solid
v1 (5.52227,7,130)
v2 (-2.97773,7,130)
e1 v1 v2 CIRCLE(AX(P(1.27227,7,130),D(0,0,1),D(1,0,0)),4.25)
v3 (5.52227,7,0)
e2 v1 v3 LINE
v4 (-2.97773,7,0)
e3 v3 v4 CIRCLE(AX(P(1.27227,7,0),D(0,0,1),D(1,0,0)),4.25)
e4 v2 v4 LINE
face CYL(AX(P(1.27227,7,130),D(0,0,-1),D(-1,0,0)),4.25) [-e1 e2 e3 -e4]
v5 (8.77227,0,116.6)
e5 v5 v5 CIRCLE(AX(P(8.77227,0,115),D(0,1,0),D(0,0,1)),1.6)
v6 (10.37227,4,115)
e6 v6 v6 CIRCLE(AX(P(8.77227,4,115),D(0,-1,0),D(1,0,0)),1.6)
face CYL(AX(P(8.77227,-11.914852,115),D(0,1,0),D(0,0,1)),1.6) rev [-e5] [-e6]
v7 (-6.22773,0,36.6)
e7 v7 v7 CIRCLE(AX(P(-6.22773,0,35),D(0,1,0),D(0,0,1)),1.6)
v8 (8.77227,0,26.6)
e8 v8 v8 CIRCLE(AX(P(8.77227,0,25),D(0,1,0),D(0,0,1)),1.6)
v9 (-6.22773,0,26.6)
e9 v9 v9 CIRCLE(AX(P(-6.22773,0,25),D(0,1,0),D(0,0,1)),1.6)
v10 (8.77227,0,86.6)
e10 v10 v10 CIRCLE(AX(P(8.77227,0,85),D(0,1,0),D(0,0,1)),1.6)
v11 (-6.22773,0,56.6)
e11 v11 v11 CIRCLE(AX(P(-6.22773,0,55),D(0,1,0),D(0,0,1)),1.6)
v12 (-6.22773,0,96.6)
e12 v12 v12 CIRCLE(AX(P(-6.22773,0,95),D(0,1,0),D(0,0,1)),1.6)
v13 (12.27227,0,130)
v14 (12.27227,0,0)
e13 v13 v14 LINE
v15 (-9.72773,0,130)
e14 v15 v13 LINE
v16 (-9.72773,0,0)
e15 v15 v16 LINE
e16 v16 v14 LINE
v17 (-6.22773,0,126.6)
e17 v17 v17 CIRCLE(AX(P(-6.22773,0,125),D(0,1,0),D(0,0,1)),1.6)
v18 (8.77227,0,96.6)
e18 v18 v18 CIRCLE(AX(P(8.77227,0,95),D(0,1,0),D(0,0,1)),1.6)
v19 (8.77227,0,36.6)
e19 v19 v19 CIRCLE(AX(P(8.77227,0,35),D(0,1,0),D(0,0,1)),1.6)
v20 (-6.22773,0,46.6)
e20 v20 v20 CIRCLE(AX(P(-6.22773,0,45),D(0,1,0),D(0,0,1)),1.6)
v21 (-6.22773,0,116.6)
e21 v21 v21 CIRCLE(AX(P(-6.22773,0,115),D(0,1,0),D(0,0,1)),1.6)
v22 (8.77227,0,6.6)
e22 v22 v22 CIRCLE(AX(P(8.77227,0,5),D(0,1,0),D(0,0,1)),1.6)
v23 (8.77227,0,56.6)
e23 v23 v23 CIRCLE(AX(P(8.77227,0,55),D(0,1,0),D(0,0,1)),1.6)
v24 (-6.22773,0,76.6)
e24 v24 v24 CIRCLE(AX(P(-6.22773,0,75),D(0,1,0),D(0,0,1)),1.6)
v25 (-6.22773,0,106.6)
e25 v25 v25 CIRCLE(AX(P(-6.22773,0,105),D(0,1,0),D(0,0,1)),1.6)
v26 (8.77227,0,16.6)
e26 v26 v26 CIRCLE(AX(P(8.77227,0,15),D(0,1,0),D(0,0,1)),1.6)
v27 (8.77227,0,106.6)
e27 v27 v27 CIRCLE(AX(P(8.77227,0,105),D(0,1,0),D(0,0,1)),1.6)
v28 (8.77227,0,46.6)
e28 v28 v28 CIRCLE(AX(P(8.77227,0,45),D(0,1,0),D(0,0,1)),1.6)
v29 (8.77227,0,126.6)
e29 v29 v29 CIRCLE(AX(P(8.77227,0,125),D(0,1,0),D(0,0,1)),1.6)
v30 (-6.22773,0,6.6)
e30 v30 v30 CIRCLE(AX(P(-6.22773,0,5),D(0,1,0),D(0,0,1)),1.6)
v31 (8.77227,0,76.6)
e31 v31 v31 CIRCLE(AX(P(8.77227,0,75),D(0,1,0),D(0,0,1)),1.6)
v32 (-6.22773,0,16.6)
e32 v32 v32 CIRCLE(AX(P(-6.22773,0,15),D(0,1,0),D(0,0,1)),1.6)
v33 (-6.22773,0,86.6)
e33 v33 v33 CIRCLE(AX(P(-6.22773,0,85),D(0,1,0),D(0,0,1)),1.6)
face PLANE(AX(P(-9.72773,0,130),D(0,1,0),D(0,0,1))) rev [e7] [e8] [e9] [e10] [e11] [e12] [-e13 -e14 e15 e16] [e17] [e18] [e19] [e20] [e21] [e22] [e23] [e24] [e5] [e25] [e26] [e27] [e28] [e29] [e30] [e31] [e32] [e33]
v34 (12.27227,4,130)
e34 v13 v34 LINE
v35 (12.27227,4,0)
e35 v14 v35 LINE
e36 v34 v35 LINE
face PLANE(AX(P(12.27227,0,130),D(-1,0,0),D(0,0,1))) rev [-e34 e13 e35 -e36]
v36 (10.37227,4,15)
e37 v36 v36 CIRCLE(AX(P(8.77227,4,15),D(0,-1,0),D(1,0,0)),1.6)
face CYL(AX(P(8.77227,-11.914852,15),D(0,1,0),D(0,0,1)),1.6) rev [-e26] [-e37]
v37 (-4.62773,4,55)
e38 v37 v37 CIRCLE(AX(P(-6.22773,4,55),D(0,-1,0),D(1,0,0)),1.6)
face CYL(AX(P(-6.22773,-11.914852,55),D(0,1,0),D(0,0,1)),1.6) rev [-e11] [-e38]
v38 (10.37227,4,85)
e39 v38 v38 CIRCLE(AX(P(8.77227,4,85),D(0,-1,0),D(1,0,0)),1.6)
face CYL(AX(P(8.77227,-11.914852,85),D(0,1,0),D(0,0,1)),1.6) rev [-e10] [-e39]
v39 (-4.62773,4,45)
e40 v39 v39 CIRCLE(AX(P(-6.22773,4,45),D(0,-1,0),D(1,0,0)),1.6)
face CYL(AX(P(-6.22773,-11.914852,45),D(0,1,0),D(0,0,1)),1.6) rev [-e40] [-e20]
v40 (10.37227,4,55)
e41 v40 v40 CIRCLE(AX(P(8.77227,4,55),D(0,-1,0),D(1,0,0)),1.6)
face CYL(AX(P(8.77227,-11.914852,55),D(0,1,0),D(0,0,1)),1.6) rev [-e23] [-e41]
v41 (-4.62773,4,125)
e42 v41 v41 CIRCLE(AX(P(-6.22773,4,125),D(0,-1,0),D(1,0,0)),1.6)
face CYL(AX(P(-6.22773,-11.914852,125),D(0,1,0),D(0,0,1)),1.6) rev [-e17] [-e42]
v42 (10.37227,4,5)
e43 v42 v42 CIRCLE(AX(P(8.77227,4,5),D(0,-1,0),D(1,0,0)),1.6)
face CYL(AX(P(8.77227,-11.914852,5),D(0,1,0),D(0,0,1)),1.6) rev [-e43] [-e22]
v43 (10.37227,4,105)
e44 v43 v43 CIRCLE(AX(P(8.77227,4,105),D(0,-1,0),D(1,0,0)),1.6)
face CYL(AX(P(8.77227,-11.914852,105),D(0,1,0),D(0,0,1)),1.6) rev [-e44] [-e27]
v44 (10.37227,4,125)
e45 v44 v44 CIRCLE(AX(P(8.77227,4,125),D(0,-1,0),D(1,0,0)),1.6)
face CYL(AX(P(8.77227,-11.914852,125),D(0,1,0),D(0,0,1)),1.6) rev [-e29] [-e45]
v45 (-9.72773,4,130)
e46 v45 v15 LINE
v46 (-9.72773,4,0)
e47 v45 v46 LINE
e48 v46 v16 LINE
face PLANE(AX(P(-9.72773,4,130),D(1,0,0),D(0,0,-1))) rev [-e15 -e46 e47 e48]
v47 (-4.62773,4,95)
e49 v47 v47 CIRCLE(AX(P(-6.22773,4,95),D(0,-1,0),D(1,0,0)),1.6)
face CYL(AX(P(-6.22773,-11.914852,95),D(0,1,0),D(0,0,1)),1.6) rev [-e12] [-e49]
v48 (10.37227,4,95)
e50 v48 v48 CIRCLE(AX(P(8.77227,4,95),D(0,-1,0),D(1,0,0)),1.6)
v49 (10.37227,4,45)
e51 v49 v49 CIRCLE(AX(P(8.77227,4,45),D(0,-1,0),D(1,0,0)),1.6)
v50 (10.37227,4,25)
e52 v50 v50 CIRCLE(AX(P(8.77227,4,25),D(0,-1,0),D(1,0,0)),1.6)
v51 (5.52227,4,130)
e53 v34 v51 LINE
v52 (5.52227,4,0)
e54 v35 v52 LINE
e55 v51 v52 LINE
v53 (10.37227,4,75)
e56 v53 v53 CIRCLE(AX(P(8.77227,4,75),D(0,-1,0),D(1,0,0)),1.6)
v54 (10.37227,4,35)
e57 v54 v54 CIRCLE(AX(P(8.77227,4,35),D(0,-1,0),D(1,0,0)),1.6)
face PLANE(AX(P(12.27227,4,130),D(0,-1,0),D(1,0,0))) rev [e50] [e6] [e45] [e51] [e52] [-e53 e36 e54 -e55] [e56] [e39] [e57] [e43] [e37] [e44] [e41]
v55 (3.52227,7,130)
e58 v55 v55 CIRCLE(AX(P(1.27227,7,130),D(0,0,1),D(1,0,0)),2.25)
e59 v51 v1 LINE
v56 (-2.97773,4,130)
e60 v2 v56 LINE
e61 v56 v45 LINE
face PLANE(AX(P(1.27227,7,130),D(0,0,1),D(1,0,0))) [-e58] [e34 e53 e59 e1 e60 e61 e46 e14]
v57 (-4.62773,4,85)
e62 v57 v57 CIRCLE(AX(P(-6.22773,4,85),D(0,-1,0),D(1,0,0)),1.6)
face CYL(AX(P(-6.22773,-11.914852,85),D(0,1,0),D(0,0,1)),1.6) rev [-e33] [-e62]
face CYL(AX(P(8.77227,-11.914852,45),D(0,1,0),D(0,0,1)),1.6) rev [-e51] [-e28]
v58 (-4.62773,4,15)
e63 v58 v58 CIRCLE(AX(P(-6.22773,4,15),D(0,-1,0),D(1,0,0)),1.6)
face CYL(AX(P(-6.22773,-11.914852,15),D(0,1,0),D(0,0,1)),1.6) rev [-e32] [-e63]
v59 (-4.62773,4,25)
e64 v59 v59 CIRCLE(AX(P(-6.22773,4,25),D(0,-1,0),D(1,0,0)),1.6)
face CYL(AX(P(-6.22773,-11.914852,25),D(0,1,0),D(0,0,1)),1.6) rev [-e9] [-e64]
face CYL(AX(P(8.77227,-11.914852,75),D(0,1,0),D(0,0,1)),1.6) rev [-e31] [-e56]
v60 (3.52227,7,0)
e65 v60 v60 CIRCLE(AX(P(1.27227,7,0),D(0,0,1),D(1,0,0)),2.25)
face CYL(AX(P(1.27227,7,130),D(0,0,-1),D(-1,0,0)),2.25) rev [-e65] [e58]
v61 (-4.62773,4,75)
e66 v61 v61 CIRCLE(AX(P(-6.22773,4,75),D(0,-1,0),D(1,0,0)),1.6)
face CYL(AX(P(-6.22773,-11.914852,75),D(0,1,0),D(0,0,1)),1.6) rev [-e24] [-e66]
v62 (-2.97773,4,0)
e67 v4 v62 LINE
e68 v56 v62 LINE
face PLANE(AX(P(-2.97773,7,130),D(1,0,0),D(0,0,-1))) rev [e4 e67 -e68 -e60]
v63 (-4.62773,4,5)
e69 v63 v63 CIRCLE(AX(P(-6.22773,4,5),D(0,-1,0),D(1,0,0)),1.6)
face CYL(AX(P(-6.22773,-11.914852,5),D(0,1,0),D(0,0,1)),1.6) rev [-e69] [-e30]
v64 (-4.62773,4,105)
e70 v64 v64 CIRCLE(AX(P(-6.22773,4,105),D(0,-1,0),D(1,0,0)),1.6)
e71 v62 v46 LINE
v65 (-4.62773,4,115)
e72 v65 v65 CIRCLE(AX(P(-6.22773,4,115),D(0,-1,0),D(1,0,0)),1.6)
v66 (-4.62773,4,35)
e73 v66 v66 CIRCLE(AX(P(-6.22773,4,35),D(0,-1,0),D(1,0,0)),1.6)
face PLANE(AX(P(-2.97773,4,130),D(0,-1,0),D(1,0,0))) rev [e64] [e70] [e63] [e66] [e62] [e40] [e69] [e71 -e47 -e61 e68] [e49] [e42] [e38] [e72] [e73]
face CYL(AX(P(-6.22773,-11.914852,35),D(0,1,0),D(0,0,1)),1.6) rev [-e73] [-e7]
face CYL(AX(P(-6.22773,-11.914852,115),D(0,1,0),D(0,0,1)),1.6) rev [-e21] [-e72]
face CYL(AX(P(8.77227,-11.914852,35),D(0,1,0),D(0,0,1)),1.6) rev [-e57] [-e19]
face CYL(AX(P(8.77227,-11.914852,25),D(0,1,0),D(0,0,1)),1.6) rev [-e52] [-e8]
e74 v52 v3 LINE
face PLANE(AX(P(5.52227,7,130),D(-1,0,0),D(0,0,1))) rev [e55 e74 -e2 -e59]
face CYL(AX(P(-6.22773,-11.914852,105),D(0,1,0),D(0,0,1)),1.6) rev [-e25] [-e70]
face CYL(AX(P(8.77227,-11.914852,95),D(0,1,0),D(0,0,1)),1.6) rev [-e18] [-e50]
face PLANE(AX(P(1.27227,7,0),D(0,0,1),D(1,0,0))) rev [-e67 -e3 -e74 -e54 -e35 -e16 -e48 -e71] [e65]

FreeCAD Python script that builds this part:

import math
import FreeCAD as App
import Part
import Sketcher
from FreeCAD import Vector
Q = App.Units.Quantity

doc = App.newDocument("Part")
params = doc.addObject("Spreadsheet::Sheet", "Params")
for row, (alias, value) in enumerate([
    ("sketch1_diameter", "4.5 mm"),
    ("sketch1_width", "22 mm"),
    ("sketch1_height", "4 mm"),
    ("sketch1_height2", "3 mm"),
    ("sketch1_radius", "4.25 mm"),
    ("pad1_length", "130 mm"),
    ("sketch2_diameter", "3.2 mm"),
    ("pocket1_length", "20 mm"),
], start=1):
    params.set(f"A{row}", alias)
    params.set(f"B{row}", "=" + value)
    params.setAlias(f"B{row}", alias)

body = doc.addObject("PartDesign::Body", "Body")

sketch1 = body.newObject("Sketcher::SketchObject", "Sketch")
sketch1.AttachmentSupport = (doc.getObject("XY_Plane"), [""])
sketch1.MapMode = "FlatFace"
sketch1.addGeometry([
    Part.LineSegment(Vector(-9.72773, 0, 0), Vector(12.27227, 0, 0)),
    Part.LineSegment(Vector(12.27227, 0, 0), Vector(12.27227, 4, 0)),
    Part.LineSegment(Vector(12.27227, 4, 0), Vector(5.52227, 4, 0)),
    Part.LineSegment(Vector(5.52227, 4, 0), Vector(5.52227, 7, 0)),
    Part.ArcOfCircle(Part.Circle(Vector(1.27227, 7, 0), Vector(0, 0, 1), 4.25), math.radians(0), math.radians(180)),
    Part.LineSegment(Vector(-2.97773, 7, 0), Vector(-2.97773, 4, 0)),
    Part.LineSegment(Vector(-2.97773, 4, 0), Vector(-9.72773, 4, 0)),
    Part.LineSegment(Vector(-9.72773, 4, 0), Vector(-9.72773, 0, 0)),
    Part.Circle(Vector(1.27227, 7, 0), Vector(0, 0, 1), 2.25),
], False)
sketch1.addConstraint([
    Sketcher.Constraint("Coincident", 0, 2, 1, 1),
    Sketcher.Constraint("Coincident", 1, 2, 2, 1),
    Sketcher.Constraint("Coincident", 2, 2, 3, 1),
    Sketcher.Constraint("Tangent", 3, 2, 4, 1),
    Sketcher.Constraint("Tangent", 4, 2, 5, 1),
    Sketcher.Constraint("Coincident", 5, 2, 6, 1),
    Sketcher.Constraint("Coincident", 6, 2, 7, 1),
    Sketcher.Constraint("Coincident", 7, 2, 0, 1),
    Sketcher.Constraint("Horizontal", 0),
    Sketcher.Constraint("Vertical", 1),
    Sketcher.Constraint("Horizontal", 2),
    Sketcher.Constraint("Vertical", 3),
    Sketcher.Constraint("Vertical", 5),
    Sketcher.Constraint("Horizontal", 6),
    Sketcher.Constraint("Vertical", 7),
    Sketcher.Constraint("Coincident", 8, 3, 4, 3),
    Sketcher.Constraint("PointOnObject", 0, 2, -1),
    Sketcher.Constraint("Horizontal", 2, 2, 5, 2),
    Sketcher.Constraint("Equal", 2, 6),
    Sketcher.Constraint("Diameter", 8, Q("4.5 mm")),
    Sketcher.Constraint("DistanceX", 0, 1, 0, 2, Q("22 mm")),
    Sketcher.Constraint("DistanceY", 1, 1, 1, 2, Q("4 mm")),
    Sketcher.Constraint("DistanceY", 3, 1, 3, 2, Q("3 mm")),
    Sketcher.Constraint("Radius", 4, Q("4.25 mm")),
    Sketcher.Constraint("DistanceX", -1, 1, 4, 3, Q("1.27227 mm")),
])
sketch1.setExpression("Constraints[19]", "Params.sketch1_diameter")
sketch1.setExpression("Constraints[20]", "Params.sketch1_width")
sketch1.setExpression("Constraints[21]", "Params.sketch1_height")
sketch1.setExpression("Constraints[22]", "Params.sketch1_height2")
sketch1.setExpression("Constraints[23]", "Params.sketch1_radius")
pad1 = body.newObject("PartDesign::Pad", "Pad")
pad1.Profile = sketch1
pad1.setExpression("Length", "Params.pad1_length")

sketch2 = body.newObject("Sketcher::SketchObject", "Sketch001")
sketch2.AttachmentSupport = (doc.getObject("XZ_Plane"), [""])
sketch2.MapMode = "FlatFace"
sketch2.AttachmentOffset = App.Placement(Vector(0, 0, -8.085148), App.Rotation())
sketch2.addGeometry([
    Part.Circle(Vector(8.77227, 5, 0), Vector(0, 0, 1), 1.6),
    Part.Circle(Vector(-6.22773, 5, 0), Vector(0, 0, 1), 1.6),
    Part.Circle(Vector(-6.22773, 15, 0), Vector(0, 0, 1), 1.6),
    Part.Circle(Vector(8.77227, 15, 0), Vector(0, 0, 1), 1.6),
    Part.Circle(Vector(8.77227, 35, 0), Vector(0, 0, 1), 1.6),
    Part.Circle(Vector(8.77227, 45, 0), Vector(0, 0, 1), 1.6),
    Part.Circle(Vector(-6.22773, 35, 0), Vector(0, 0, 1), 1.6),
    Part.Circle(Vector(-6.22773, 45, 0), Vector(0, 0, 1), 1.6),
    Part.Circle(Vector(-6.22773, 25, 0), Vector(0, 0, 1), 1.6),
    Part.Circle(Vector(8.77227, 25, 0), Vector(0, 0, 1), 1.6),
    Part.Circle(Vector(-6.22773, 55, 0), Vector(0, 0, 1), 1.6),
    Part.Circle(Vector(8.77227, 55, 0), Vector(0, 0, 1), 1.6),
    Part.Circle(Vector(8.77227, 75, 0), Vector(0, 0, 1), 1.6),
    Part.Circle(Vector(-6.22773, 75, 0), Vector(0, 0, 1), 1.6),
    Part.Circle(Vector(8.77227, 105, 0), Vector(0, 0, 1), 1.6),
    Part.Circle(Vector(-6.22773, 105, 0), Vector(0, 0, 1), 1.6),
    Part.Circle(Vector(-6.22773, 85, 0), Vector(0, 0, 1), 1.6),
    Part.Circle(Vector(-6.22773, 95, 0), Vector(0, 0, 1), 1.6),
    Part.Circle(Vector(8.77227, 85, 0), Vector(0, 0, 1), 1.6),
    Part.Circle(Vector(8.77227, 95, 0), Vector(0, 0, 1), 1.6),
    Part.Circle(Vector(8.77227, 115, 0), Vector(0, 0, 1), 1.6),
    Part.Circle(Vector(-6.22773, 115, 0), Vector(0, 0, 1), 1.6),
    Part.Circle(Vector(-6.22773, 125, 0), Vector(0, 0, 1), 1.6),
    Part.Circle(Vector(8.77227, 125, 0), Vector(0, 0, 1), 1.6),
], False)
sketch2.addConstraint([
    Sketcher.Constraint("Equal", 0, 1),
    Sketcher.Constraint("Equal", 1, 2),
    Sketcher.Constraint("Equal", 2, 3),
    Sketcher.Constraint("Equal", 3, 4),
    Sketcher.Constraint("Equal", 4, 5),
    Sketcher.Constraint("Equal", 5, 6),
    Sketcher.Constraint("Equal", 6, 7),
    Sketcher.Constraint("Equal", 7, 8),
    Sketcher.Constraint("Equal", 8, 9),
    Sketcher.Constraint("Equal", 9, 10),
    Sketcher.Constraint("Equal", 10, 11),
    Sketcher.Constraint("Equal", 11, 12),
    Sketcher.Constraint("Equal", 12, 13),
    Sketcher.Constraint("Equal", 13, 14),
    Sketcher.Constraint("Equal", 14, 15),
    Sketcher.Constraint("Equal", 15, 16),
    Sketcher.Constraint("Equal", 16, 17),
    Sketcher.Constraint("Equal", 17, 18),
    Sketcher.Constraint("Equal", 18, 19),
    Sketcher.Constraint("Equal", 19, 20),
    Sketcher.Constraint("Equal", 20, 21),
    Sketcher.Constraint("Equal", 21, 22),
    Sketcher.Constraint("Equal", 22, 23),
    Sketcher.Constraint("Horizontal", 0, 3, 1, 3),
    Sketcher.Constraint("Horizontal", 2, 3, 3, 3),
    Sketcher.Constraint("Horizontal", 4, 3, 6, 3),
    Sketcher.Constraint("Horizontal", 5, 3, 7, 3),
    Sketcher.Constraint("Horizontal", 8, 3, 9, 3),
    Sketcher.Constraint("Horizontal", 10, 3, 11, 3),
    Sketcher.Constraint("Horizontal", 12, 3, 13, 3),
    Sketcher.Constraint("Horizontal", 14, 3, 15, 3),
    Sketcher.Constraint("Horizontal", 16, 3, 18, 3),
    Sketcher.Constraint("Horizontal", 17, 3, 19, 3),
    Sketcher.Constraint("Horizontal", 20, 3, 21, 3),
    Sketcher.Constraint("Horizontal", 22, 3, 23, 3),
    Sketcher.Constraint("Vertical", 1, 3, 2, 3),
    Sketcher.Constraint("Vertical", 0, 3, 3, 3),
    Sketcher.Constraint("Vertical", 3, 3, 4, 3),
    Sketcher.Constraint("Vertical", 4, 3, 5, 3),
    Sketcher.Constraint("Vertical", 2, 3, 6, 3),
    Sketcher.Constraint("Vertical", 6, 3, 7, 3),
    Sketcher.Constraint("Vertical", 7, 3, 8, 3),
    Sketcher.Constraint("Vertical", 5, 3, 9, 3),
    Sketcher.Constraint("Vertical", 8, 3, 10, 3),
    Sketcher.Constraint("Vertical", 9, 3, 11, 3),
    Sketcher.Constraint("Vertical", 11, 3, 12, 3),
    Sketcher.Constraint("Vertical", 10, 3, 13, 3),
    Sketcher.Constraint("Vertical", 12, 3, 14, 3),
    Sketcher.Constraint("Vertical", 13, 3, 15, 3),
    Sketcher.Constraint("Vertical", 15, 3, 16, 3),
    Sketcher.Constraint("Vertical", 16, 3, 17, 3),
    Sketcher.Constraint("Vertical", 14, 3, 18, 3),
    Sketcher.Constraint("Vertical", 18, 3, 19, 3),
    Sketcher.Constraint("Vertical", 19, 3, 20, 3),
    Sketcher.Constraint("Vertical", 17, 3, 21, 3),
    Sketcher.Constraint("Vertical", 21, 3, 22, 3),
    Sketcher.Constraint("Vertical", 20, 3, 23, 3),
    Sketcher.Constraint("Diameter", 0, Q("3.2 mm")),
    Sketcher.Constraint("DistanceY", -1, 1, 0, 3, Q("5 mm")),
    Sketcher.Constraint("DistanceY", -1, 1, 2, 3, Q("15 mm")),
    Sketcher.Constraint("DistanceY", -1, 1, 4, 3, Q("35 mm")),
    Sketcher.Constraint("DistanceY", -1, 1, 5, 3, Q("45 mm")),
    Sketcher.Constraint("DistanceY", -1, 1, 8, 3, Q("25 mm")),
    Sketcher.Constraint("DistanceY", -1, 1, 10, 3, Q("55 mm")),
    Sketcher.Constraint("DistanceY", -1, 1, 12, 3, Q("75 mm")),
    Sketcher.Constraint("DistanceY", -1, 1, 14, 3, Q("105 mm")),
    Sketcher.Constraint("DistanceY", -1, 1, 16, 3, Q("85 mm")),
    Sketcher.Constraint("DistanceY", -1, 1, 17, 3, Q("95 mm")),
    Sketcher.Constraint("DistanceY", -1, 1, 20, 3, Q("115 mm")),
    Sketcher.Constraint("DistanceY", -1, 1, 22, 3, Q("125 mm")),
    Sketcher.Constraint("DistanceX", 1, 3, 0, 3, Q("15 mm")),
    Sketcher.Constraint("DistanceX", -1, 1, 0, 3, Q("8.77227 mm")),
])
sketch2.setExpression("Constraints[57]", "Params.sketch2_diameter")
pocket1 = body.newObject("PartDesign::Pocket", "Pocket")
pocket1.Profile = sketch2
pocket1.setExpression("Length", "Params.pocket1_length")
pocket1.Reversed = True

doc.recompute()
